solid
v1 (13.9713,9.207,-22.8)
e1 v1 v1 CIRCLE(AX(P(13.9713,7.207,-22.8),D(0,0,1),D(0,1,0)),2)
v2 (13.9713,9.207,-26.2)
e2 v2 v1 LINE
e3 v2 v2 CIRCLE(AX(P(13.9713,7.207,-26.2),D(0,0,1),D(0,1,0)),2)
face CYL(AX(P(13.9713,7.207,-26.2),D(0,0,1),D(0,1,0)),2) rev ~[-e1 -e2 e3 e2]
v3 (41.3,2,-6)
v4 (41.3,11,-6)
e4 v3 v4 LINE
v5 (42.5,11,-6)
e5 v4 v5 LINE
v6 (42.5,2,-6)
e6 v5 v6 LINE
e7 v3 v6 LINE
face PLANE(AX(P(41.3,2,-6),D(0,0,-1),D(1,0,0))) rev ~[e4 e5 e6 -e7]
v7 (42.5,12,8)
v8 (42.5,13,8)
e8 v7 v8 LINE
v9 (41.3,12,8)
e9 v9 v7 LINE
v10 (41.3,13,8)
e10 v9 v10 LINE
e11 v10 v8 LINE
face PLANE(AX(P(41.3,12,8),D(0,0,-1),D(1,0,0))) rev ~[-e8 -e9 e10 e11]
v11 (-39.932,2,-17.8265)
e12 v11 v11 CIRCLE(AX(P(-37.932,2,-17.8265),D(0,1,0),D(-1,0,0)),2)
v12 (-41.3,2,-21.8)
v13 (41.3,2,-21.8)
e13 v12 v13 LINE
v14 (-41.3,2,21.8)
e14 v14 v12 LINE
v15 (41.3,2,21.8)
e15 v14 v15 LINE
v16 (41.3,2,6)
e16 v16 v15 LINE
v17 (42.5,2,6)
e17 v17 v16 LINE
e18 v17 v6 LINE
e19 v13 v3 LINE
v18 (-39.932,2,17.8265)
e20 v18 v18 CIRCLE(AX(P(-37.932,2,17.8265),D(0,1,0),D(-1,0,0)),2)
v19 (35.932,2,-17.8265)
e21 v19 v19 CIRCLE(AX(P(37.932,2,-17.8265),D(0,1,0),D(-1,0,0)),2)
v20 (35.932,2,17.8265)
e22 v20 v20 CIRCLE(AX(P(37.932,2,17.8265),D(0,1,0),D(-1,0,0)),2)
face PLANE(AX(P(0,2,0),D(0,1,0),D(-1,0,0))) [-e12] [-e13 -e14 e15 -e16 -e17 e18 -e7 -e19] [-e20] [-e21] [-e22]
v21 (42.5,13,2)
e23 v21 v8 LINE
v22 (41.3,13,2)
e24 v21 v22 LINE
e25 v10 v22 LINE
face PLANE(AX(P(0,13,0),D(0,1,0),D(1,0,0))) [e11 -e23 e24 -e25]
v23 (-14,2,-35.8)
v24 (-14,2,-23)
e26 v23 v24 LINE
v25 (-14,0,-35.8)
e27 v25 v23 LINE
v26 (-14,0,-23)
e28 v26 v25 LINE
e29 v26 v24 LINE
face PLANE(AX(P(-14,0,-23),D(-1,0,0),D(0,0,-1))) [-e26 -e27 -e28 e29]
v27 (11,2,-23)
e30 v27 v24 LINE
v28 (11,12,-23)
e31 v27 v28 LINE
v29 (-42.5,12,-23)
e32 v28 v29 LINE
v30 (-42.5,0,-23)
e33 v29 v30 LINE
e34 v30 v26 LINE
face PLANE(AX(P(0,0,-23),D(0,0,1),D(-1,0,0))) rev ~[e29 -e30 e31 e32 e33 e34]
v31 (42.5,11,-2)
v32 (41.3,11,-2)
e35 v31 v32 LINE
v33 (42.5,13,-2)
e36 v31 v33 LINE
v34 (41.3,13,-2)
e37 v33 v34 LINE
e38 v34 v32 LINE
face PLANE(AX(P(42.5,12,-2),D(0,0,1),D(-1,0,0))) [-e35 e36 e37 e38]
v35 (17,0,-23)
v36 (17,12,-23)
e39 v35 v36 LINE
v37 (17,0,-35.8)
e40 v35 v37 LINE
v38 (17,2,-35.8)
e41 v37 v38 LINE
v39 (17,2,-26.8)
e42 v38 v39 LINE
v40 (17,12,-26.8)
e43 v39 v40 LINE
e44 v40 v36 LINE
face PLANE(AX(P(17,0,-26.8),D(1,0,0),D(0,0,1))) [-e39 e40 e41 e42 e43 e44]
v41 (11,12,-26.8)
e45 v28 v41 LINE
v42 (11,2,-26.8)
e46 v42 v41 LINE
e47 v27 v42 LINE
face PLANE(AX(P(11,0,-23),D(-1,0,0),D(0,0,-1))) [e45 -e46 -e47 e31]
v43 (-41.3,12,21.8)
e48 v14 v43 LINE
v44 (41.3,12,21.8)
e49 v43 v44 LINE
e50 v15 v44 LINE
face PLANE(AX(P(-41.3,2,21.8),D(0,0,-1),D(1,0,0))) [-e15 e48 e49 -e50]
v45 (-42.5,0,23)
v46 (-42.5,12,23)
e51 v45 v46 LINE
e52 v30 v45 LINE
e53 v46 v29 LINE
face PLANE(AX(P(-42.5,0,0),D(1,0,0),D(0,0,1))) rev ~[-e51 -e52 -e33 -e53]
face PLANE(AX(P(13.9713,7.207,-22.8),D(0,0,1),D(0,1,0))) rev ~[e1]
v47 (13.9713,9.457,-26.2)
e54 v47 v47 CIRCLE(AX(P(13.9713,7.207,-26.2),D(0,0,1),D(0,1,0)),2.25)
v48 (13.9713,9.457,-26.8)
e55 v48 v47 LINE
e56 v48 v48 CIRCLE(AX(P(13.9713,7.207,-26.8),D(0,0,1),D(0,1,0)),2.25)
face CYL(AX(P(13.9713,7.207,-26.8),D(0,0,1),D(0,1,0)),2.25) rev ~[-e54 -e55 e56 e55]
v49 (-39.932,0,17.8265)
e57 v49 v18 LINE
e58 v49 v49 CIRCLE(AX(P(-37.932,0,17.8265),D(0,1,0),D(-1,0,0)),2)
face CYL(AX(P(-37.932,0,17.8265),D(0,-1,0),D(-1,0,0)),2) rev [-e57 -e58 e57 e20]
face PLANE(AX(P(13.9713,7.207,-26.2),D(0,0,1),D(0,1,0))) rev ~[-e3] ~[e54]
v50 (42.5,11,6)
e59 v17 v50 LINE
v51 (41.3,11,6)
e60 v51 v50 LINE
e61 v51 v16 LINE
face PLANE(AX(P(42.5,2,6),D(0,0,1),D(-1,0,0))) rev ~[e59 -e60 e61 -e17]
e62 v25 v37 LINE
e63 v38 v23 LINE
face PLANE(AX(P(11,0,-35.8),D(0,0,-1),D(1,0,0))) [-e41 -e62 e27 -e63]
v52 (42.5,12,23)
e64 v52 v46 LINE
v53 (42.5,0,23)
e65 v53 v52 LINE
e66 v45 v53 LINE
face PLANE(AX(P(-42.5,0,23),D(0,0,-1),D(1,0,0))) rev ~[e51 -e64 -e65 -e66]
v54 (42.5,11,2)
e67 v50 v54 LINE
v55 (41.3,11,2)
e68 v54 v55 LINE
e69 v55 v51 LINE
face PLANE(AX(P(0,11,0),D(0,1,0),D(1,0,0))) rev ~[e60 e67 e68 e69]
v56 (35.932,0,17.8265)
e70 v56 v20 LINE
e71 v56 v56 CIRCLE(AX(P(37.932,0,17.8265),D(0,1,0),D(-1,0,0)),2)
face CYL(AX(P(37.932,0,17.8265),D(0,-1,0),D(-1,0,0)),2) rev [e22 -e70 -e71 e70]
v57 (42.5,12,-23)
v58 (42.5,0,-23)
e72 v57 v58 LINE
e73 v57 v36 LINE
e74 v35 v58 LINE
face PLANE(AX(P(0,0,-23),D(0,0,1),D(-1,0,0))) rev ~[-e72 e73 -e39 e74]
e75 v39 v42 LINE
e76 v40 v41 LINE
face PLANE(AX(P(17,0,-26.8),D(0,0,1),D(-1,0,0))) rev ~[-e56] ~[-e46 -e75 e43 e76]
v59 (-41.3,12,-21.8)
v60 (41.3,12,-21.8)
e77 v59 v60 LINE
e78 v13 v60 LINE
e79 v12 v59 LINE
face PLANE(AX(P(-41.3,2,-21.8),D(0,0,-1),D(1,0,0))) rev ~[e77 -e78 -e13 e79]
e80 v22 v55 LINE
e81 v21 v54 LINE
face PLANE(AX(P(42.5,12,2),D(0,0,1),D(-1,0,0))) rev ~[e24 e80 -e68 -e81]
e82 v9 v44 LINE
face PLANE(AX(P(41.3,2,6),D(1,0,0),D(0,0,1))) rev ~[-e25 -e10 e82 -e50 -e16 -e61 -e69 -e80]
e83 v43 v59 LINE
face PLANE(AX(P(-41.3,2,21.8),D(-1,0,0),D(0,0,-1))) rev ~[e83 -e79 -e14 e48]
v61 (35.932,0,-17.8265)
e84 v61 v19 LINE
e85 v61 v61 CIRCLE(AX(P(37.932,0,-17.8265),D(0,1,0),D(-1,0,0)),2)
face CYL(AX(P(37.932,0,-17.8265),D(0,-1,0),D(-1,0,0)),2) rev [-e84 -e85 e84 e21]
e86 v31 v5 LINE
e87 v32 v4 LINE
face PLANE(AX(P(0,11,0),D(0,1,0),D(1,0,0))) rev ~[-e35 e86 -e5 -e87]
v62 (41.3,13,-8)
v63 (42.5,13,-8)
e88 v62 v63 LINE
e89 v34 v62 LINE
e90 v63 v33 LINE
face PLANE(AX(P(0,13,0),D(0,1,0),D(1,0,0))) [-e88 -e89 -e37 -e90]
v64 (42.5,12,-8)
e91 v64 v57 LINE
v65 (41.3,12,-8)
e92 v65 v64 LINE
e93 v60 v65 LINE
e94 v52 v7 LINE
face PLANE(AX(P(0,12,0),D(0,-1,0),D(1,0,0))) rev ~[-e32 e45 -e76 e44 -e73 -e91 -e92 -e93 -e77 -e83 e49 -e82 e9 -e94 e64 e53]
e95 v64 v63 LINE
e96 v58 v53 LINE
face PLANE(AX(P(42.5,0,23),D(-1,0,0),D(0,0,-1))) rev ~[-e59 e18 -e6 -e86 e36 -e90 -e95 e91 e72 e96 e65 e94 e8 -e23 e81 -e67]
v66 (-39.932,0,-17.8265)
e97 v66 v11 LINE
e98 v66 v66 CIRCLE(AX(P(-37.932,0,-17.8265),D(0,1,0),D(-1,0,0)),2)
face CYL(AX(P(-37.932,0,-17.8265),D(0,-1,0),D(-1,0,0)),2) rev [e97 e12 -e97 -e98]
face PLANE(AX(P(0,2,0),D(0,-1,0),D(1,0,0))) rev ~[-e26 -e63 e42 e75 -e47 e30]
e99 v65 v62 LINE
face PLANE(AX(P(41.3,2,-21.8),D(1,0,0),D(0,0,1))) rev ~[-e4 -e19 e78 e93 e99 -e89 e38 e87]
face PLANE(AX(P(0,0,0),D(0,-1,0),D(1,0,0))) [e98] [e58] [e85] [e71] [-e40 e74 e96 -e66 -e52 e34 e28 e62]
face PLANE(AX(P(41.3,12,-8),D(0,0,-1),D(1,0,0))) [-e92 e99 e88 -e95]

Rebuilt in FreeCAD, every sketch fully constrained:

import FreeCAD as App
import Part
import Sketcher
from FreeCAD import Vector


def add_polygon(sketch, points):
    """Adds a closed chain of lines whose ends are joined by coincident constraints."""
    first, n = sketch.GeometryCount, len(points)
    for a, b in zip(points, points[1:] + points[:1]):
        sketch.addGeometry(Part.LineSegment(App.Vector(*a, 0), App.Vector(*b, 0)), False)
    for i in range(n):
        sketch.addConstraint(Sketcher.Constraint("Coincident", first + i, 2, first + (i + 1) % n, 1))

doc = App.newDocument("Part")
params = doc.addObject("Spreadsheet::Sheet", "Params")
for row, (alias, value) in enumerate([
    ("sketch1_diameter", "4 mm"),
    ("sketch1_width", "85 mm"),
    ("sketch1_height", "46 mm"),
    ("pad1_length", "2 mm"),
    ("sketch2_width", "1.2 mm"),
    ("sketch2_width2", "85 mm"),
    ("sketch2_height", "17 mm"),
    ("pad2_length", "10 mm"),
    ("sketch3_height", "2 mm"),
    ("sketch3_width", "1.2 mm"),
    ("pad3_length", "1 mm"),
    ("sketch4_width", "1.2 mm"),
    ("pad4_length", "2 mm"),
    ("sketch5_width", "6 mm"),
    ("sketch5_height", "9 mm"),
    ("sketch5_height2", "3.8 mm"),
    ("sketch5_width2", "25 mm"),
    ("pad5_length", "2 mm"),
    ("sketch6_width", "6 mm"),
    ("sketch6_height", "3.8 mm"),
    ("pad6_length", "12 mm"),
    ("sketch7_diameter", "4 mm"),
    ("hole_diameter", "4 mm"),
    ("hole_depth", "4 mm"),
    ("hole_cbore_diameter", "4.5 mm"),
    ("hole_cbore_depth", "0.6 mm"),
], start=1):
    params.set(f"A{row}", alias)
    params.set(f"B{row}", "=" + value)
    params.setAlias(f"B{row}", alias)

body = doc.addObject("PartDesign::Body", "Body")

# Sketch on XZ plane
sketch1 = body.newObject("Sketcher::SketchObject", "Sketch")
sketch1.AttachmentSupport = (doc.getObject("XZ_Plane"), [""])
sketch1.MapMode = "FlatFace"
add_polygon(sketch1, [(-42.5, 23), (42.5, 23), (42.5, -23), (-42.5, -23)])  # lines 0-3
sketch1.addGeometry(Part.Circle(Vector(-37.9, 17.8, 0), Vector(0, 0, 1), 2), False)  # 4
sketch1.addGeometry(Part.Circle(Vector(-37.9, -17.8, 0), Vector(0, 0, 1), 2), False)  # 5
sketch1.addGeometry(Part.Circle(Vector(37.9, 17.8, 0), Vector(0, 0, 1), 2), False)  # 6
sketch1.addGeometry(Part.Circle(Vector(37.9, -17.8, 0), Vector(0, 0, 1), 2), False)  # 7
sketch1.addConstraint(Sketcher.Constraint("Horizontal", 0))
sketch1.addConstraint(Sketcher.Constraint("Vertical", 1))
sketch1.addConstraint(Sketcher.Constraint("Horizontal", 2))
sketch1.addConstraint(Sketcher.Constraint("Vertical", 3))
sketch1.addConstraint(Sketcher.Constraint("Equal", 4, 5))
sketch1.addConstraint(Sketcher.Constraint("Equal", 5, 6))
sketch1.addConstraint(Sketcher.Constraint("Equal", 6, 7))
sketch1.addConstraint(Sketcher.Constraint("Symmetric", 5, 3, 6, 3, -1, 1))
sketch1.addConstraint(Sketcher.Constraint("Symmetric", 4, 3, 7, 3, -1, 1))
sketch1.addConstraint(Sketcher.Constraint("Symmetric", 0, 2, 2, 2, -1, 1))
sketch1.addConstraint(Sketcher.Constraint("Symmetric", 4, 3, 6, 3, -2))
sketch1.addConstraint(Sketcher.Constraint("Diameter", 4, 4.0))
sketch1.addConstraint(Sketcher.Constraint("DistanceX", 0, 1, 0, 2, 85.0))
sketch1.addConstraint(Sketcher.Constraint("DistanceY", 1, 2, 1, 1, 46.0))
sketch1.addConstraint(Sketcher.Constraint("DistanceY", 5, 3, 4, 3, 35.653))
sketch1.addConstraint(Sketcher.Constraint("DistanceX", 4, 3, 6, 3, 75.864))
sketch1.setExpression("Constraints[15]", "Params.sketch1_diameter")
sketch1.setExpression("Constraints[16]", "Params.sketch1_width")
sketch1.setExpression("Constraints[17]", "Params.sketch1_height")
pad1 = body.newObject("PartDesign::Pad", "Pad")
pad1.Profile = sketch1
pad1.setExpression("Length", "Params.pad1_length")
pad1.Reversed = True

# Sketch on XZ plane
sketch2 = body.newObject("Sketcher::SketchObject", "Sketch001")
sketch2.AttachmentSupport = (doc.getObject("XZ_Plane"), [""])
sketch2.MapMode = "FlatFace"
sketch2.AttachmentOffset = App.Placement(Vector(0, 0, -2), App.Rotation())
add_polygon(sketch2, [(-42.5, 23), (42.5, 23), (42.5, 6), (41.3, 6), (41.3, 21.8), (-41.3, 21.8), (-41.3, -21.8), (41.3, -21.8), (41.3, -6), (42.5, -6), (42.5, -23), (-42.5, -23)])  # lines 0-11
sketch2.addConstraint(Sketcher.Constraint("Horizontal", 0))
sketch2.addConstraint(Sketcher.Constraint("Vertical", 1))
sketch2.addConstraint(Sketcher.Constraint("Horizontal", 2))
sketch2.addConstraint(Sketcher.Constraint("Vertical", 3))
sketch2.addConstraint(Sketcher.Constraint("Horizontal", 4))
sketch2.addConstraint(Sketcher.Constraint("Vertical", 5))
sketch2.addConstraint(Sketcher.Constraint("Horizontal", 6))
sketch2.addConstraint(Sketcher.Constraint("Vertical", 7))
sketch2.addConstraint(Sketcher.Constraint("Horizontal", 8))
sketch2.addConstraint(Sketcher.Constraint("Vertical", 9))
sketch2.addConstraint(Sketcher.Constraint("Horizontal", 10))
sketch2.addConstraint(Sketcher.Constraint("Vertical", 11))
sketch2.addConstraint(Sketcher.Constraint("Symmetric", 3, 2, 5, 2, -1, 1))
sketch2.addConstraint(Sketcher.Constraint("Symmetric", 0, 2, 10, 2, -1, 1))
sketch2.addConstraint(Sketcher.Constraint("Symmetric", 2, 2, 7, 2, -1))
sketch2.addConstraint(Sketcher.Constraint("Vertical", 1, 2, 8, 2))
sketch2.addConstraint(Sketcher.Constraint("DistanceX", 2, 2, 2, 1, 1.2))
sketch2.addConstraint(Sketcher.Constraint("DistanceY", -1, 1, 1, 2, 6.0))
sketch2.addConstraint(Sketcher.Constraint("DistanceY", 3, 2, 0, 2, 1.2))
sketch2.addConstraint(Sketcher.Constraint("DistanceX", 0, 1, 0, 2, 85.0))
sketch2.addConstraint(Sketcher.Constraint("DistanceY", 1, 2, 1, 1, 17.0))
sketch2.setExpression("Constraints[28]", "Params.sketch2_width")
sketch2.setExpression("Constraints[31]", "Params.sketch2_width2")
sketch2.setExpression("Constraints[32]", "Params.sketch2_height")
pad2 = body.newObject("PartDesign::Pad", "Pad001")
pad2.Profile = sketch2
pad2.setExpression("Length", "Params.pad2_length")
pad2.Reversed = True

# Sketch on XZ plane
sketch3 = body.newObject("Sketcher::SketchObject", "Sketch002")
sketch3.AttachmentSupport = (doc.getObject("XZ_Plane"), [""])
sketch3.MapMode = "FlatFace"
sketch3.AttachmentOffset = App.Placement(Vector(0, 0, -12), App.Rotation())
add_polygon(sketch3, [(42.5, 6), (41.3, 6), (41.3, 8), (42.5, 8)])  # lines 0-3
add_polygon(sketch3, [(41.3, -6), (42.5, -6), (42.5, -8), (41.3, -8)])  # lines 4-7
sketch3.addConstraint(Sketcher.Constraint("Horizontal", 0))
sketch3.addConstraint(Sketcher.Constraint("Vertical", 1))
sketch3.addConstraint(Sketcher.Constraint("Horizontal", 2))
sketch3.addConstraint(Sketcher.Constraint("Vertical", 3))
sketch3.addConstraint(Sketcher.Constraint("Horizontal", 4))
sketch3.addConstraint(Sketcher.Constraint("Vertical", 5))
sketch3.addConstraint(Sketcher.Constraint("Horizontal", 6))
sketch3.addConstraint(Sketcher.Constraint("Vertical", 7))
sketch3.addConstraint(Sketcher.Constraint("Symmetric", 3, 2, 4, 2, -1))
sketch3.addConstraint(Sketcher.Constraint("Symmetric", 1, 2, 6, 2, -1))
sketch3.addConstraint(Sketcher.Constraint("DistanceY", 1, 1, 1, 2, 2.0))
sketch3.addConstraint(Sketcher.Constraint("DistanceY", -1, 1, 0, 2, 6.0))
sketch3.addConstraint(Sketcher.Constraint("DistanceX", 0, 2, 0, 1, 1.2))
sketch3.addConstraint(Sketcher.Constraint("DistanceX", -1, 1, 0, 2, 41.3))
sketch3.setExpression("Constraints[18]", "Params.sketch3_height")
sketch3.setExpression("Constraints[20]", "Params.sketch3_width")
pad3 = body.newObject("PartDesign::Pad", "Pad002")
pad3.Profile = sketch3
pad3.setExpression("Length", "Params.pad3_length")
pad3.Reversed = True

# Sketch on XZ plane
sketch4 = body.newObject("Sketcher::SketchObject", "Sketch003")
sketch4.AttachmentSupport = (doc.getObject("XZ_Plane"), [""])
sketch4.MapMode = "FlatFace"
sketch4.AttachmentOffset = App.Placement(Vector(0, 0, -12), App.Rotation())
add_polygon(sketch4, [(41.3, -2), (42.5, -2), (42.5, -6), (41.3, -6)])  # lines 0-3
add_polygon(sketch4, [(41.3, 2), (41.3, 6), (42.5, 6), (42.5, 2)])  # lines 4-7
sketch4.addConstraint(Sketcher.Constraint("Horizontal", 0))
sketch4.addConstraint(Sketcher.Constraint("Vertical", 1))
sketch4.addConstraint(Sketcher.Constraint("Horizontal", 2))
sketch4.addConstraint(Sketcher.Constraint("Vertical", 3))
sketch4.addConstraint(Sketcher.Constraint("Vertical", 4))
sketch4.addConstraint(Sketcher.Constraint("Horizontal", 5))
sketch4.addConstraint(Sketcher.Constraint("Vertical", 6))
sketch4.addConstraint(Sketcher.Constraint("Horizontal", 7))
sketch4.addConstraint(Sketcher.Constraint("Symmetric", 2, 2, 4, 2, -1))
sketch4.addConstraint(Sketcher.Constraint("Symmetric", 0, 2, 6, 2, -1))
sketch4.addConstraint(Sketcher.Constraint("DistanceY", 0, 2, -1, 1, 2.0))
sketch4.addConstraint(Sketcher.Constraint("DistanceY", 1, 2, -1, 1, 6.0))
sketch4.addConstraint(Sketcher.Constraint("DistanceX", 0, 1, 0, 2, 1.2))
sketch4.addConstraint(Sketcher.Constraint("DistanceX", -1, 1, 0, 2, 42.5))
sketch4.setExpression("Constraints[20]", "Params.sketch4_width")
pad4 = body.newObject("PartDesign::Pad", "Pad003")
pad4.Profile = sketch4
pad4.setExpression("Length", "Params.pad4_length")
pad4.Midplane = True

# Sketch on XZ plane
sketch5 = body.newObject("Sketcher::SketchObject", "Sketch004")
sketch5.AttachmentSupport = (doc.getObject("XZ_Plane"), [""])
sketch5.MapMode = "FlatFace"
add_polygon(sketch5, [(11, -26.8), (11, -23), (-14, -23), (-14, -35.8), (17, -35.8), (17, -26.8)])  # lines 0-5
sketch5.addConstraint(Sketcher.Constraint("Vertical", 0))
sketch5.addConstraint(Sketcher.Constraint("Horizontal", 1))
sketch5.addConstraint(Sketcher.Constraint("Vertical", 2))
sketch5.addConstraint(Sketcher.Constraint("Horizontal", 3))
sketch5.addConstraint(Sketcher.Constraint("Vertical", 4))
sketch5.addConstraint(Sketcher.Constraint("Horizontal", 5))
sketch5.addConstraint(Sketcher.Constraint("DistanceX", 5, 2, 5, 1, 6.0))
sketch5.addConstraint(Sketcher.Constraint("DistanceY", 4, 1, 4, 2, 9.0))
sketch5.addConstraint(Sketcher.Constraint("DistanceY", 0, 1, 0, 2, 3.8))
sketch5.addConstraint(Sketcher.Constraint("DistanceX", 1, 2, 1, 1, 25.0))
sketch5.addConstraint(Sketcher.Constraint("DistanceX", -1, 1, 0, 2, 11.0))
sketch5.addConstraint(Sketcher.Constraint("DistanceY", 0, 2, -1, 1, 23.0))
sketch5.setExpression("Constraints[12]", "Params.sketch5_width")
sketch5.setExpression("Constraints[13]", "Params.sketch5_height")
sketch5.setExpression("Constraints[14]", "Params.sketch5_height2")
sketch5.setExpression("Constraints[15]", "Params.sketch5_width2")
pad5 = body.newObject("PartDesign::Pad", "Pad004")
pad5.Profile = sketch5
pad5.setExpression("Length", "Params.pad5_length")
pad5.Reversed = True

# Sketch on XZ plane
sketch6 = body.newObject("Sketcher::SketchObject", "Sketch005")
sketch6.AttachmentSupport = (doc.getObject("XZ_Plane"), [""])
sketch6.MapMode = "FlatFace"
add_polygon(sketch6, [(17, -26.8), (17, -23), (11, -23), (11, -26.8)])  # lines 0-3
sketch6.addConstraint(Sketcher.Constraint("Vertical", 0))
sketch6.addConstraint(Sketcher.Constraint("Horizontal", 1))
sketch6.addConstraint(Sketcher.Constraint("Vertical", 2))
sketch6.addConstraint(Sketcher.Constraint("Horizontal", 3))
sketch6.addConstraint(Sketcher.Constraint("DistanceX", 1, 2, 1, 1, 6.0))
sketch6.addConstraint(Sketcher.Constraint("DistanceY", 0, 1, 0, 2, 3.8))
sketch6.addConstraint(Sketcher.Constraint("DistanceX", -1, 1, 0, 2, 17.0))
sketch6.addConstraint(Sketcher.Constraint("DistanceY", 0, 2, -1, 1, 23.0))
sketch6.setExpression("Constraints[8]", "Params.sketch6_width")
sketch6.setExpression("Constraints[9]", "Params.sketch6_height")
pad6 = body.newObject("PartDesign::Pad", "Pad005")
pad6.Profile = sketch6
pad6.setExpression("Length", "Params.pad6_length")
pad6.Reversed = True

# Sketch on XY plane
sketch7 = body.newObject("Sketcher::SketchObject", "Sketch006")
sketch7.AttachmentSupport = (doc.getObject("XY_Plane"), [""])
sketch7.MapMode = "FlatFace"
sketch7.AttachmentOffset = App.Placement(Vector(0, 0, -26.8), App.Rotation())
sketch7.addGeometry(Part.Circle(Vector(14, 7.2, 0), Vector(0, 0, 1), 2), False)
sketch7.addConstraint(Sketcher.Constraint("Diameter", 0, 4.0))
sketch7.addConstraint(Sketcher.Constraint("DistanceY", -1, 1, 0, 3, 7.207))
sketch7.addConstraint(Sketcher.Constraint("DistanceX", -1, 1, 0, 3, 13.9713))
sketch7.setExpression("Constraints[0]", "Params.sketch7_diameter")
doc.recompute()
hole = body.newObject("PartDesign::Hole", "Hole")
hole.Profile = sketch7
hole.ThreadType = "None"
hole.setExpression("Diameter", "Params.hole_diameter")
hole.DepthType = "Dimension"
hole.setExpression("Depth", "Params.hole_depth")
hole.DrillPoint = "Flat"
hole.HoleCutType = "Counterbore"
hole.setExpression("HoleCutDiameter", "Params.hole_cbore_diameter")
hole.setExpression("HoleCutDepth", "Params.hole_cbore_depth")
hole.Reversed = True

doc.recompute()
